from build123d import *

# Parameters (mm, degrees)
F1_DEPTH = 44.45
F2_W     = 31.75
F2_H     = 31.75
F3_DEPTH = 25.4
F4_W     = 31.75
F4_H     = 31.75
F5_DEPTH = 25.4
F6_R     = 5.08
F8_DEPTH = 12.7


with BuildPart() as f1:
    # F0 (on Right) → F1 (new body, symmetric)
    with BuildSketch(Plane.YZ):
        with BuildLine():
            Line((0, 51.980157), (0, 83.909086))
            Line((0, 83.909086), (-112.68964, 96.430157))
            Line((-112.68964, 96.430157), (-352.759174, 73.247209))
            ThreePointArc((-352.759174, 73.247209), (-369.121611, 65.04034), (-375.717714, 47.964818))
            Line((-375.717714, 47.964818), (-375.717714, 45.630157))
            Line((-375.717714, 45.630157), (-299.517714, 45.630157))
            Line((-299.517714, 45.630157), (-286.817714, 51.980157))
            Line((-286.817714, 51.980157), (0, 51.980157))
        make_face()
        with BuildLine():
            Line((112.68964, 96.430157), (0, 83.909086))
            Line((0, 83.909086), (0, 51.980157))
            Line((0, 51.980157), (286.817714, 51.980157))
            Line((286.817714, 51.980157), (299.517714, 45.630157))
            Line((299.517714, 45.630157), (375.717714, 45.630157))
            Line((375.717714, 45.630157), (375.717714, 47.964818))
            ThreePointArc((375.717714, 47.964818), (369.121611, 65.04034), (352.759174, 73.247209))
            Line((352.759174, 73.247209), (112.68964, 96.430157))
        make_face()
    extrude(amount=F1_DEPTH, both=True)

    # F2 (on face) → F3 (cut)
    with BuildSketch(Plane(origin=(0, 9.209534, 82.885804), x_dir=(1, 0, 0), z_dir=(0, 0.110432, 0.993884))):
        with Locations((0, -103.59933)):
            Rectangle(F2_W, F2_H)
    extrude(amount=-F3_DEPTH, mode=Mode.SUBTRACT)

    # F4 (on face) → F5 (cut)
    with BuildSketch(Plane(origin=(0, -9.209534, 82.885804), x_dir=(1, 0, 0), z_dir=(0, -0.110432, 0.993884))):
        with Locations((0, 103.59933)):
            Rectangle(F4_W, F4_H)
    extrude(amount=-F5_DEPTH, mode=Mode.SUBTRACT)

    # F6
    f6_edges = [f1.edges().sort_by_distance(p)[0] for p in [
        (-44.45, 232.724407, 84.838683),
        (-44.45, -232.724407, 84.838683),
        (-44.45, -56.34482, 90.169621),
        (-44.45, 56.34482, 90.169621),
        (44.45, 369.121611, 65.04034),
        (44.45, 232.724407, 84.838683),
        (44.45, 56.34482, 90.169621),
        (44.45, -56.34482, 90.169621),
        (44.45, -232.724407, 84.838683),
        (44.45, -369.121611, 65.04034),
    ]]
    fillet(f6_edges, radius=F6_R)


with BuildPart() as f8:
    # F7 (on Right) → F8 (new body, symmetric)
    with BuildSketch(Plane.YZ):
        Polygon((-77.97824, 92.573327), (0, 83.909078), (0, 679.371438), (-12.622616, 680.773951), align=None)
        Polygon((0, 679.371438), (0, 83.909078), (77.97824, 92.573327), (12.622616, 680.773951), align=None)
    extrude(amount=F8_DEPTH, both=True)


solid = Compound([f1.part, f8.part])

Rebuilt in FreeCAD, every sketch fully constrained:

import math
import FreeCAD as App
import Part
import Sketcher

V = App.Vector
Q = App.Units.Quantity


def edges_at(feature, points):
    """Names of the edges that pass closest to the given points."""
    edges = feature.Shape.Edges
    near = lambda p: min(range(len(edges)), key=lambda i: edges[i].distToShape(Part.Vertex(*p))[0])
    return sorted({f"Edge{near(p) + 1}" for p in points})

doc = App.newDocument("Part")
body = doc.addObject("PartDesign::Body", "Body")

sketch1 = body.newObject("Sketcher::SketchObject", "Sketch")
sketch1.AttachmentSupport = (doc.getObject("YZ_Plane"), [""])
sketch1.MapMode = "FlatFace"
sketch1.addGeometry([
    Part.LineSegment(V(0, 83.9, 0), V(-112.7, 96.4, 0)),
    Part.LineSegment(V(-112.7, 96.4, 0), V(-352.8, 73.2, 0)),
    Part.ArcOfCircle(Part.Circle(V(-350.3, 48, 0), V(0, 0, 1), 25.4), math.radians(96), math.radians(180)),
    Part.LineSegment(V(-375.7, 48, 0), V(-375.7, 45.6, 0)),
    Part.LineSegment(V(-375.7, 45.6, 0), V(-299.5, 45.6, 0)),
    Part.LineSegment(V(-299.5, 45.6, 0), V(-286.8, 52, 0)),
    Part.LineSegment(V(-286.8, 52, 0), V(286.8, 52, 0)),
    Part.LineSegment(V(286.8, 52, 0), V(299.5, 45.6, 0)),
    Part.LineSegment(V(299.5, 45.6, 0), V(375.7, 45.6, 0)),
    Part.LineSegment(V(375.7, 45.6, 0), V(375.7, 48, 0)),
    Part.ArcOfCircle(Part.Circle(V(350.3, 48, 0), V(0, 0, 1), 25.4), math.radians(0), math.radians(84)),
    Part.LineSegment(V(352.8, 73.2, 0), V(112.7, 96.4, 0)),
    Part.LineSegment(V(112.7, 96.4, 0), V(0, 83.9, 0)),
], False)
sketch1.addConstraint([
    Sketcher.Constraint("Coincident", 0, 2, 1, 1),
    Sketcher.Constraint("Tangent", 1, 2, 2, 1),
    Sketcher.Constraint("Tangent", 2, 2, 3, 1),
    Sketcher.Constraint("Coincident", 3, 2, 4, 1),
    Sketcher.Constraint("Coincident", 4, 2, 5, 1),
    Sketcher.Constraint("Coincident", 5, 2, 6, 1),
    Sketcher.Constraint("Coincident", 6, 2, 7, 1),
    Sketcher.Constraint("Coincident", 7, 2, 8, 1),
    Sketcher.Constraint("Coincident", 8, 2, 9, 1),
    Sketcher.Constraint("Tangent", 9, 2, 10, 1),
    Sketcher.Constraint("Tangent", 10, 2, 11, 1),
    Sketcher.Constraint("Coincident", 11, 2, 12, 1),
    Sketcher.Constraint("Coincident", 12, 2, 0, 1),
    Sketcher.Constraint("Vertical", 3),
    Sketcher.Constraint("Horizontal", 4),
    Sketcher.Constraint("Horizontal", 6),
    Sketcher.Constraint("Horizontal", 8),
    Sketcher.Constraint("Vertical", 9),
    Sketcher.Constraint("Equal", 2, 10),
    Sketcher.Constraint("Symmetric", 2, 3, 10, 3, -2),
    Sketcher.Constraint("Symmetric", 4, 2, 7, 2, -2),
    Sketcher.Constraint("Symmetric", 0, 2, 11, 2, -2),
    Sketcher.Constraint("PointOnObject", 12, 2, -2),
    Sketcher.Constraint("Equal", 5, 7),
    Sketcher.Constraint("Radius", 2, Q("1 in")),
    Sketcher.Constraint("DistanceX", 4, 1, 4, 2, Q("3 in")),
    Sketcher.Constraint("DistanceY", 3, 2, 0, 2, Q("2 in")),
    Sketcher.Constraint("DistanceX", 4, 2, 5, 2, Q("0.5 in")),
    Sketcher.Constraint("DistanceY", 4, 2, 5, 2, Q("0.25 in")),
    Sketcher.Constraint("DistanceX", 0, 2, -1, 1, Q("4.4366 in")),
    Sketcher.Constraint("DistanceX", 6, 1, 6, 2, 573.635428),
    Sketcher.Constraint("DistanceY", 3, 2, 3, 1, 2.334661),
    Sketcher.Constraint("Distance", 0, 113.383121),
    Sketcher.Constraint("DistanceY", -1, 1, 1, 2, 73.247209),
])
pad1 = body.newObject("PartDesign::Pad", "Pad")
pad1.Profile = sketch1
pad1.Length = Q("3.5 in")
pad1.Midplane = True

sketch2 = body.newObject("Sketcher::SketchObject", "Sketch001")
sketch2.Placement = App.Placement(V(0, 9.209534, 82.885804), App.Rotation(V(1, 0, 0), V(0, 0.993883686, -0.110431965), V(0, 0.110431965, 0.993883686), "ZXY"))
sketch2.addGeometry([
    Part.LineSegment(V(-16, -88, 0), V(-16, -119, 0)),
    Part.LineSegment(V(-16, -119, 0), V(16, -119, 0)),
    Part.LineSegment(V(16, -119, 0), V(16, -88, 0)),
    Part.LineSegment(V(16, -88, 0), V(-16, -88, 0)),
], False)
sketch2.addConstraint([
    Sketcher.Constraint("Coincident", 0, 2, 1, 1),
    Sketcher.Constraint("Coincident", 1, 2, 2, 1),
    Sketcher.Constraint("Coincident", 2, 2, 3, 1),
    Sketcher.Constraint("Coincident", 3, 2, 0, 1),
    Sketcher.Constraint("Vertical", 0),
    Sketcher.Constraint("Horizontal", 1),
    Sketcher.Constraint("Vertical", 2),
    Sketcher.Constraint("Horizontal", 3),
    Sketcher.Constraint("Equal", 3, 0),
    Sketcher.Constraint("DistanceX", 1, 1, 1, 2, Q("1.25 in")),
    Sketcher.Constraint("DistanceX", 0, 2, -1, 1, Q("0.625 in")),
    Sketcher.Constraint("DistanceY", 0, 2, -1, 1, 119.47433),
])
pocket1 = body.newObject("PartDesign::Pocket", "Pocket")
pocket1.Profile = sketch2
pocket1.Length = Q("1 in")

sketch3 = body.newObject("Sketcher::SketchObject", "Sketch002")
sketch3.Placement = App.Placement(V(0, -9.209534, 82.885804), App.Rotation(V(1, 0, 0), V(0, 0.993883686, 0.110431965), V(0, -0.110431965, 0.993883686), "ZXY"))
sketch3.addGeometry([
    Part.LineSegment(V(-16, 119, 0), V(-16, 88, 0)),
    Part.LineSegment(V(-16, 88, 0), V(16, 88, 0)),
    Part.LineSegment(V(16, 88, 0), V(16, 119, 0)),
    Part.LineSegment(V(16, 119, 0), V(-16, 119, 0)),
], False)
sketch3.addConstraint([
    Sketcher.Constraint("Coincident", 0, 2, 1, 1),
    Sketcher.Constraint("Coincident", 1, 2, 2, 1),
    Sketcher.Constraint("Coincident", 2, 2, 3, 1),
    Sketcher.Constraint("Coincident", 3, 2, 0, 1),
    Sketcher.Constraint("Vertical", 0),
    Sketcher.Constraint("Horizontal", 1),
    Sketcher.Constraint("Vertical", 2),
    Sketcher.Constraint("Horizontal", 3),
    Sketcher.Constraint("Equal", 3, 0),
    Sketcher.Constraint("DistanceX", 1, 1, 1, 2, Q("1.25 in")),
    Sketcher.Constraint("DistanceX", 0, 2, -1, 1, Q("0.625 in")),
    Sketcher.Constraint("DistanceY", -1, 1, 0, 2, 87.72433),
])
pocket2 = body.newObject("PartDesign::Pocket", "Pocket001")
pocket2.Profile = sketch3
pocket2.Length = Q("1 in")
doc.recompute()

fillet = body.newObject("PartDesign::Fillet", "Fillet")
fillet.Base = (pocket2, edges_at(pocket2, [
    (-44.45, 232.724, 84.839),
    (-44.45, -232.724, 84.839),
    (-44.45, -56.345, 90.17),
    (-44.45, 56.345, 90.17),
    (44.45, 369.122, 65.04),
    (44.45, 232.724, 84.839),
    (44.45, 56.345, 90.17),
    (44.45, -56.345, 90.17),
    (44.45, -232.724, 84.839),
    (44.45, -369.122, 65.04),
]))
fillet.Radius = Q("0.2 in")
body2 = doc.addObject("PartDesign::Body", "Body001")

sketch4 = body2.newObject("Sketcher::SketchObject", "Sketch003")
sketch4.AttachmentSupport = (doc.getObject("YZ_Plane001"), [""])
sketch4.MapMode = "FlatFace"
sketch4.addGeometry([
    Part.LineSegment(V(-77.97824, 92.573327, 0), V(0, 83.909078, 0)),
    Part.LineSegment(V(0, 83.909078, 0), V(77.97824, 92.573327, 0)),
    Part.LineSegment(V(77.97824, 92.573327, 0), V(12.622616, 680.773951, 0)),
    Part.LineSegment(V(12.622616, 680.773951, 0), V(0, 679.371438, 0)),
    Part.LineSegment(V(0, 679.371438, 0), V(-12.622616, 680.773951, 0)),
    Part.LineSegment(V(-12.622616, 680.773951, 0), V(-77.97824, 92.573327, 0)),
], False)
sketch4.addConstraint([
    Sketcher.Constraint("Coincident", 0, 2, 1, 1),
    Sketcher.Constraint("Coincident", 1, 2, 2, 1),
    Sketcher.Constraint("Coincident", 2, 2, 3, 1),
    Sketcher.Constraint("Coincident", 3, 2, 4, 1),
    Sketcher.Constraint("Coincident", 4, 2, 5, 1),
    Sketcher.Constraint("Coincident", 5, 2, 0, 1),
    Sketcher.Constraint("Symmetric", 2, 2, 4, 2, -2),
    Sketcher.Constraint("Symmetric", 1, 2, 5, 2, -2),
    Sketcher.Constraint("PointOnObject", 0, 2, -2),
    Sketcher.Constraint("PointOnObject", 3, 2, -2),
    Sketcher.Constraint("Perpendicular", 1, 2),
    Sketcher.Constraint("Perpendicular", 2, 3),
    Sketcher.Constraint("DistanceY", 0, 2, 3, 2, Q("23.4434 in")),
    Sketcher.Constraint("Distance", 0, 78.458111),
    Sketcher.Constraint("DistanceX", -1, 1, 1, 2, 77.97824),
    Sketcher.Constraint("DistanceY", -1, 1, 2, 2, 680.773951),
])
pad2 = body2.newObject("PartDesign::Pad", "Pad001")
pad2.Profile = sketch4
pad2.Length = Q("1 in")
pad2.Midplane = True

doc.recompute()
